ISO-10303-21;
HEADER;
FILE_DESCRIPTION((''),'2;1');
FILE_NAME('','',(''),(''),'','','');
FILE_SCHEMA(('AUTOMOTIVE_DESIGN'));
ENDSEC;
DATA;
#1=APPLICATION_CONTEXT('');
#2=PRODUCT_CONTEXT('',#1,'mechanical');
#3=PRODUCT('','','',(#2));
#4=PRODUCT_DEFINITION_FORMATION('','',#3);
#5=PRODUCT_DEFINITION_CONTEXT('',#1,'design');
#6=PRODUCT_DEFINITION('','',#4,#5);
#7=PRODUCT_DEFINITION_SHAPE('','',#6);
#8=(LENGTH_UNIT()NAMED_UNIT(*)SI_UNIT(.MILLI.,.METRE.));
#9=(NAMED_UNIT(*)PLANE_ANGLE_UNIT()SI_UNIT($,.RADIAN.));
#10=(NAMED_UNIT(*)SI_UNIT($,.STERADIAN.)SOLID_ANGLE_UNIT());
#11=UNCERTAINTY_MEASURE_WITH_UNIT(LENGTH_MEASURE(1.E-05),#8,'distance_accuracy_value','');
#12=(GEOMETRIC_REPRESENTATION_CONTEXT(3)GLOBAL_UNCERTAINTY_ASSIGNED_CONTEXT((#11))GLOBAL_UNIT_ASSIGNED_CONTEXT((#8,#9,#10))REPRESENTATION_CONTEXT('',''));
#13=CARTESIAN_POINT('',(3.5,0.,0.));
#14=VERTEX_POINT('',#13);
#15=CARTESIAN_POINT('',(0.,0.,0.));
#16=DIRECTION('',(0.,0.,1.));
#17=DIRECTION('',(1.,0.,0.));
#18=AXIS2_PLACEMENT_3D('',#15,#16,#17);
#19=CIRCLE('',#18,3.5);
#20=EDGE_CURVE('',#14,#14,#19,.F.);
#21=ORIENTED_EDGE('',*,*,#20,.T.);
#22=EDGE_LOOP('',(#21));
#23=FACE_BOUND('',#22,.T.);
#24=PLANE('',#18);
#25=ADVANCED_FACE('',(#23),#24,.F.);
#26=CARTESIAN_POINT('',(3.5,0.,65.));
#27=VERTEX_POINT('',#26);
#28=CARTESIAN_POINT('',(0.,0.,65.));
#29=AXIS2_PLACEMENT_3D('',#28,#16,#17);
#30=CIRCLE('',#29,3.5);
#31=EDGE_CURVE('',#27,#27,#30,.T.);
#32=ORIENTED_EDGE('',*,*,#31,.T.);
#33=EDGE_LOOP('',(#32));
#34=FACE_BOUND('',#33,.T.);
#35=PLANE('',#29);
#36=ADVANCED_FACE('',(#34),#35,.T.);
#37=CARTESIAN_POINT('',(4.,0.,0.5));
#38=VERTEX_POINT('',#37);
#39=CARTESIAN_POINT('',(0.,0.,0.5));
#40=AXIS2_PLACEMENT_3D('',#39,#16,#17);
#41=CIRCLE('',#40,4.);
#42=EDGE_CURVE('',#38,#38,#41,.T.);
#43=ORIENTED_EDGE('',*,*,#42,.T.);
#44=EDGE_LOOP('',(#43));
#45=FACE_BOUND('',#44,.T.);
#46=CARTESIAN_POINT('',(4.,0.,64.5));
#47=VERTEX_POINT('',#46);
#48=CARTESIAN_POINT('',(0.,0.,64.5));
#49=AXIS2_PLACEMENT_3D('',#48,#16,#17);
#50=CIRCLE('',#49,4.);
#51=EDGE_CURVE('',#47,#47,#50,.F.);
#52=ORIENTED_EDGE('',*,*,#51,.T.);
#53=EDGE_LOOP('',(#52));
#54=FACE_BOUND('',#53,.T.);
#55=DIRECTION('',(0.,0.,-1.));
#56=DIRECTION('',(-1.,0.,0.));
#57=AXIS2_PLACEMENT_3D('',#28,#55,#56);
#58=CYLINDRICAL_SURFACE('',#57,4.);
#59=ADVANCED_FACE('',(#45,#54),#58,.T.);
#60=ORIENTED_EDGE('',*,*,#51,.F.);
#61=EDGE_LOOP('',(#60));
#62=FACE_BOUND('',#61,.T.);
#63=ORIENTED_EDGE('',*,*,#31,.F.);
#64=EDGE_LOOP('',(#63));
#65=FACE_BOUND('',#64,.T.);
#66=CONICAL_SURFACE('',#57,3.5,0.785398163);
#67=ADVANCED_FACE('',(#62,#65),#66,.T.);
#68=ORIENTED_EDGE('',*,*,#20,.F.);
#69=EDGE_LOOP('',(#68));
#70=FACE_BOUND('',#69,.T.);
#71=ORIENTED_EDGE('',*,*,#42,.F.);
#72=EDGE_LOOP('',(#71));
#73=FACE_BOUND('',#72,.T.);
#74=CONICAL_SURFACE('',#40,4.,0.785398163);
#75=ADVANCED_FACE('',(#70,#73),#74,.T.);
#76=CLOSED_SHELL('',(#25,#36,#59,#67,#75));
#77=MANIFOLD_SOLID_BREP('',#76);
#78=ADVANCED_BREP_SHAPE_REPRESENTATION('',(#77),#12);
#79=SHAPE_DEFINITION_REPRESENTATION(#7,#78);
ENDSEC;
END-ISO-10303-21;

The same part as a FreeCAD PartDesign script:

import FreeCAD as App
import Part
import Sketcher
from FreeCAD import Vector
Q = App.Units.Quantity


def edges_at(feature, points):
    """Names of the edges that pass closest to the given points."""
    edges = feature.Shape.Edges
    near = lambda p: min(range(len(edges)), key=lambda i: edges[i].distToShape(Part.Vertex(*p))[0])
    return sorted({f"Edge{near(p) + 1}" for p in points})

doc = App.newDocument("Part")
body = doc.addObject("PartDesign::Body", "Body")

sketch1 = doc.addObject("Sketcher::SketchObject", "Sketch")
body.addObject(sketch1)
sketch1.AttachmentSupport = (doc.XY_Plane, [""])
sketch1.MapMode = "FlatFace"
sketch1.addGeometry(Part.Circle(Vector(0, 0, 0), Vector(0, 0, 1), 4), False)
sketch1.addConstraint(Sketcher.Constraint("Coincident", 0, 3, -1, 1))
sketch1.addConstraint(Sketcher.Constraint("Diameter", 0, Q("8 mm")))
pad1 = doc.addObject("PartDesign::Pad", "Pad")
body.addObject(pad1)
pad1.Profile = sketch1
pad1.Length = 65
doc.recompute()

chamfer = doc.addObject("PartDesign::Chamfer", "Chamfer")
body.addObject(chamfer)
chamfer.Base = (pad1, edges_at(pad1, [(-4, 0, 0), (-4, 0, 65)]))
chamfer.Size = 0.5

doc.recompute()
